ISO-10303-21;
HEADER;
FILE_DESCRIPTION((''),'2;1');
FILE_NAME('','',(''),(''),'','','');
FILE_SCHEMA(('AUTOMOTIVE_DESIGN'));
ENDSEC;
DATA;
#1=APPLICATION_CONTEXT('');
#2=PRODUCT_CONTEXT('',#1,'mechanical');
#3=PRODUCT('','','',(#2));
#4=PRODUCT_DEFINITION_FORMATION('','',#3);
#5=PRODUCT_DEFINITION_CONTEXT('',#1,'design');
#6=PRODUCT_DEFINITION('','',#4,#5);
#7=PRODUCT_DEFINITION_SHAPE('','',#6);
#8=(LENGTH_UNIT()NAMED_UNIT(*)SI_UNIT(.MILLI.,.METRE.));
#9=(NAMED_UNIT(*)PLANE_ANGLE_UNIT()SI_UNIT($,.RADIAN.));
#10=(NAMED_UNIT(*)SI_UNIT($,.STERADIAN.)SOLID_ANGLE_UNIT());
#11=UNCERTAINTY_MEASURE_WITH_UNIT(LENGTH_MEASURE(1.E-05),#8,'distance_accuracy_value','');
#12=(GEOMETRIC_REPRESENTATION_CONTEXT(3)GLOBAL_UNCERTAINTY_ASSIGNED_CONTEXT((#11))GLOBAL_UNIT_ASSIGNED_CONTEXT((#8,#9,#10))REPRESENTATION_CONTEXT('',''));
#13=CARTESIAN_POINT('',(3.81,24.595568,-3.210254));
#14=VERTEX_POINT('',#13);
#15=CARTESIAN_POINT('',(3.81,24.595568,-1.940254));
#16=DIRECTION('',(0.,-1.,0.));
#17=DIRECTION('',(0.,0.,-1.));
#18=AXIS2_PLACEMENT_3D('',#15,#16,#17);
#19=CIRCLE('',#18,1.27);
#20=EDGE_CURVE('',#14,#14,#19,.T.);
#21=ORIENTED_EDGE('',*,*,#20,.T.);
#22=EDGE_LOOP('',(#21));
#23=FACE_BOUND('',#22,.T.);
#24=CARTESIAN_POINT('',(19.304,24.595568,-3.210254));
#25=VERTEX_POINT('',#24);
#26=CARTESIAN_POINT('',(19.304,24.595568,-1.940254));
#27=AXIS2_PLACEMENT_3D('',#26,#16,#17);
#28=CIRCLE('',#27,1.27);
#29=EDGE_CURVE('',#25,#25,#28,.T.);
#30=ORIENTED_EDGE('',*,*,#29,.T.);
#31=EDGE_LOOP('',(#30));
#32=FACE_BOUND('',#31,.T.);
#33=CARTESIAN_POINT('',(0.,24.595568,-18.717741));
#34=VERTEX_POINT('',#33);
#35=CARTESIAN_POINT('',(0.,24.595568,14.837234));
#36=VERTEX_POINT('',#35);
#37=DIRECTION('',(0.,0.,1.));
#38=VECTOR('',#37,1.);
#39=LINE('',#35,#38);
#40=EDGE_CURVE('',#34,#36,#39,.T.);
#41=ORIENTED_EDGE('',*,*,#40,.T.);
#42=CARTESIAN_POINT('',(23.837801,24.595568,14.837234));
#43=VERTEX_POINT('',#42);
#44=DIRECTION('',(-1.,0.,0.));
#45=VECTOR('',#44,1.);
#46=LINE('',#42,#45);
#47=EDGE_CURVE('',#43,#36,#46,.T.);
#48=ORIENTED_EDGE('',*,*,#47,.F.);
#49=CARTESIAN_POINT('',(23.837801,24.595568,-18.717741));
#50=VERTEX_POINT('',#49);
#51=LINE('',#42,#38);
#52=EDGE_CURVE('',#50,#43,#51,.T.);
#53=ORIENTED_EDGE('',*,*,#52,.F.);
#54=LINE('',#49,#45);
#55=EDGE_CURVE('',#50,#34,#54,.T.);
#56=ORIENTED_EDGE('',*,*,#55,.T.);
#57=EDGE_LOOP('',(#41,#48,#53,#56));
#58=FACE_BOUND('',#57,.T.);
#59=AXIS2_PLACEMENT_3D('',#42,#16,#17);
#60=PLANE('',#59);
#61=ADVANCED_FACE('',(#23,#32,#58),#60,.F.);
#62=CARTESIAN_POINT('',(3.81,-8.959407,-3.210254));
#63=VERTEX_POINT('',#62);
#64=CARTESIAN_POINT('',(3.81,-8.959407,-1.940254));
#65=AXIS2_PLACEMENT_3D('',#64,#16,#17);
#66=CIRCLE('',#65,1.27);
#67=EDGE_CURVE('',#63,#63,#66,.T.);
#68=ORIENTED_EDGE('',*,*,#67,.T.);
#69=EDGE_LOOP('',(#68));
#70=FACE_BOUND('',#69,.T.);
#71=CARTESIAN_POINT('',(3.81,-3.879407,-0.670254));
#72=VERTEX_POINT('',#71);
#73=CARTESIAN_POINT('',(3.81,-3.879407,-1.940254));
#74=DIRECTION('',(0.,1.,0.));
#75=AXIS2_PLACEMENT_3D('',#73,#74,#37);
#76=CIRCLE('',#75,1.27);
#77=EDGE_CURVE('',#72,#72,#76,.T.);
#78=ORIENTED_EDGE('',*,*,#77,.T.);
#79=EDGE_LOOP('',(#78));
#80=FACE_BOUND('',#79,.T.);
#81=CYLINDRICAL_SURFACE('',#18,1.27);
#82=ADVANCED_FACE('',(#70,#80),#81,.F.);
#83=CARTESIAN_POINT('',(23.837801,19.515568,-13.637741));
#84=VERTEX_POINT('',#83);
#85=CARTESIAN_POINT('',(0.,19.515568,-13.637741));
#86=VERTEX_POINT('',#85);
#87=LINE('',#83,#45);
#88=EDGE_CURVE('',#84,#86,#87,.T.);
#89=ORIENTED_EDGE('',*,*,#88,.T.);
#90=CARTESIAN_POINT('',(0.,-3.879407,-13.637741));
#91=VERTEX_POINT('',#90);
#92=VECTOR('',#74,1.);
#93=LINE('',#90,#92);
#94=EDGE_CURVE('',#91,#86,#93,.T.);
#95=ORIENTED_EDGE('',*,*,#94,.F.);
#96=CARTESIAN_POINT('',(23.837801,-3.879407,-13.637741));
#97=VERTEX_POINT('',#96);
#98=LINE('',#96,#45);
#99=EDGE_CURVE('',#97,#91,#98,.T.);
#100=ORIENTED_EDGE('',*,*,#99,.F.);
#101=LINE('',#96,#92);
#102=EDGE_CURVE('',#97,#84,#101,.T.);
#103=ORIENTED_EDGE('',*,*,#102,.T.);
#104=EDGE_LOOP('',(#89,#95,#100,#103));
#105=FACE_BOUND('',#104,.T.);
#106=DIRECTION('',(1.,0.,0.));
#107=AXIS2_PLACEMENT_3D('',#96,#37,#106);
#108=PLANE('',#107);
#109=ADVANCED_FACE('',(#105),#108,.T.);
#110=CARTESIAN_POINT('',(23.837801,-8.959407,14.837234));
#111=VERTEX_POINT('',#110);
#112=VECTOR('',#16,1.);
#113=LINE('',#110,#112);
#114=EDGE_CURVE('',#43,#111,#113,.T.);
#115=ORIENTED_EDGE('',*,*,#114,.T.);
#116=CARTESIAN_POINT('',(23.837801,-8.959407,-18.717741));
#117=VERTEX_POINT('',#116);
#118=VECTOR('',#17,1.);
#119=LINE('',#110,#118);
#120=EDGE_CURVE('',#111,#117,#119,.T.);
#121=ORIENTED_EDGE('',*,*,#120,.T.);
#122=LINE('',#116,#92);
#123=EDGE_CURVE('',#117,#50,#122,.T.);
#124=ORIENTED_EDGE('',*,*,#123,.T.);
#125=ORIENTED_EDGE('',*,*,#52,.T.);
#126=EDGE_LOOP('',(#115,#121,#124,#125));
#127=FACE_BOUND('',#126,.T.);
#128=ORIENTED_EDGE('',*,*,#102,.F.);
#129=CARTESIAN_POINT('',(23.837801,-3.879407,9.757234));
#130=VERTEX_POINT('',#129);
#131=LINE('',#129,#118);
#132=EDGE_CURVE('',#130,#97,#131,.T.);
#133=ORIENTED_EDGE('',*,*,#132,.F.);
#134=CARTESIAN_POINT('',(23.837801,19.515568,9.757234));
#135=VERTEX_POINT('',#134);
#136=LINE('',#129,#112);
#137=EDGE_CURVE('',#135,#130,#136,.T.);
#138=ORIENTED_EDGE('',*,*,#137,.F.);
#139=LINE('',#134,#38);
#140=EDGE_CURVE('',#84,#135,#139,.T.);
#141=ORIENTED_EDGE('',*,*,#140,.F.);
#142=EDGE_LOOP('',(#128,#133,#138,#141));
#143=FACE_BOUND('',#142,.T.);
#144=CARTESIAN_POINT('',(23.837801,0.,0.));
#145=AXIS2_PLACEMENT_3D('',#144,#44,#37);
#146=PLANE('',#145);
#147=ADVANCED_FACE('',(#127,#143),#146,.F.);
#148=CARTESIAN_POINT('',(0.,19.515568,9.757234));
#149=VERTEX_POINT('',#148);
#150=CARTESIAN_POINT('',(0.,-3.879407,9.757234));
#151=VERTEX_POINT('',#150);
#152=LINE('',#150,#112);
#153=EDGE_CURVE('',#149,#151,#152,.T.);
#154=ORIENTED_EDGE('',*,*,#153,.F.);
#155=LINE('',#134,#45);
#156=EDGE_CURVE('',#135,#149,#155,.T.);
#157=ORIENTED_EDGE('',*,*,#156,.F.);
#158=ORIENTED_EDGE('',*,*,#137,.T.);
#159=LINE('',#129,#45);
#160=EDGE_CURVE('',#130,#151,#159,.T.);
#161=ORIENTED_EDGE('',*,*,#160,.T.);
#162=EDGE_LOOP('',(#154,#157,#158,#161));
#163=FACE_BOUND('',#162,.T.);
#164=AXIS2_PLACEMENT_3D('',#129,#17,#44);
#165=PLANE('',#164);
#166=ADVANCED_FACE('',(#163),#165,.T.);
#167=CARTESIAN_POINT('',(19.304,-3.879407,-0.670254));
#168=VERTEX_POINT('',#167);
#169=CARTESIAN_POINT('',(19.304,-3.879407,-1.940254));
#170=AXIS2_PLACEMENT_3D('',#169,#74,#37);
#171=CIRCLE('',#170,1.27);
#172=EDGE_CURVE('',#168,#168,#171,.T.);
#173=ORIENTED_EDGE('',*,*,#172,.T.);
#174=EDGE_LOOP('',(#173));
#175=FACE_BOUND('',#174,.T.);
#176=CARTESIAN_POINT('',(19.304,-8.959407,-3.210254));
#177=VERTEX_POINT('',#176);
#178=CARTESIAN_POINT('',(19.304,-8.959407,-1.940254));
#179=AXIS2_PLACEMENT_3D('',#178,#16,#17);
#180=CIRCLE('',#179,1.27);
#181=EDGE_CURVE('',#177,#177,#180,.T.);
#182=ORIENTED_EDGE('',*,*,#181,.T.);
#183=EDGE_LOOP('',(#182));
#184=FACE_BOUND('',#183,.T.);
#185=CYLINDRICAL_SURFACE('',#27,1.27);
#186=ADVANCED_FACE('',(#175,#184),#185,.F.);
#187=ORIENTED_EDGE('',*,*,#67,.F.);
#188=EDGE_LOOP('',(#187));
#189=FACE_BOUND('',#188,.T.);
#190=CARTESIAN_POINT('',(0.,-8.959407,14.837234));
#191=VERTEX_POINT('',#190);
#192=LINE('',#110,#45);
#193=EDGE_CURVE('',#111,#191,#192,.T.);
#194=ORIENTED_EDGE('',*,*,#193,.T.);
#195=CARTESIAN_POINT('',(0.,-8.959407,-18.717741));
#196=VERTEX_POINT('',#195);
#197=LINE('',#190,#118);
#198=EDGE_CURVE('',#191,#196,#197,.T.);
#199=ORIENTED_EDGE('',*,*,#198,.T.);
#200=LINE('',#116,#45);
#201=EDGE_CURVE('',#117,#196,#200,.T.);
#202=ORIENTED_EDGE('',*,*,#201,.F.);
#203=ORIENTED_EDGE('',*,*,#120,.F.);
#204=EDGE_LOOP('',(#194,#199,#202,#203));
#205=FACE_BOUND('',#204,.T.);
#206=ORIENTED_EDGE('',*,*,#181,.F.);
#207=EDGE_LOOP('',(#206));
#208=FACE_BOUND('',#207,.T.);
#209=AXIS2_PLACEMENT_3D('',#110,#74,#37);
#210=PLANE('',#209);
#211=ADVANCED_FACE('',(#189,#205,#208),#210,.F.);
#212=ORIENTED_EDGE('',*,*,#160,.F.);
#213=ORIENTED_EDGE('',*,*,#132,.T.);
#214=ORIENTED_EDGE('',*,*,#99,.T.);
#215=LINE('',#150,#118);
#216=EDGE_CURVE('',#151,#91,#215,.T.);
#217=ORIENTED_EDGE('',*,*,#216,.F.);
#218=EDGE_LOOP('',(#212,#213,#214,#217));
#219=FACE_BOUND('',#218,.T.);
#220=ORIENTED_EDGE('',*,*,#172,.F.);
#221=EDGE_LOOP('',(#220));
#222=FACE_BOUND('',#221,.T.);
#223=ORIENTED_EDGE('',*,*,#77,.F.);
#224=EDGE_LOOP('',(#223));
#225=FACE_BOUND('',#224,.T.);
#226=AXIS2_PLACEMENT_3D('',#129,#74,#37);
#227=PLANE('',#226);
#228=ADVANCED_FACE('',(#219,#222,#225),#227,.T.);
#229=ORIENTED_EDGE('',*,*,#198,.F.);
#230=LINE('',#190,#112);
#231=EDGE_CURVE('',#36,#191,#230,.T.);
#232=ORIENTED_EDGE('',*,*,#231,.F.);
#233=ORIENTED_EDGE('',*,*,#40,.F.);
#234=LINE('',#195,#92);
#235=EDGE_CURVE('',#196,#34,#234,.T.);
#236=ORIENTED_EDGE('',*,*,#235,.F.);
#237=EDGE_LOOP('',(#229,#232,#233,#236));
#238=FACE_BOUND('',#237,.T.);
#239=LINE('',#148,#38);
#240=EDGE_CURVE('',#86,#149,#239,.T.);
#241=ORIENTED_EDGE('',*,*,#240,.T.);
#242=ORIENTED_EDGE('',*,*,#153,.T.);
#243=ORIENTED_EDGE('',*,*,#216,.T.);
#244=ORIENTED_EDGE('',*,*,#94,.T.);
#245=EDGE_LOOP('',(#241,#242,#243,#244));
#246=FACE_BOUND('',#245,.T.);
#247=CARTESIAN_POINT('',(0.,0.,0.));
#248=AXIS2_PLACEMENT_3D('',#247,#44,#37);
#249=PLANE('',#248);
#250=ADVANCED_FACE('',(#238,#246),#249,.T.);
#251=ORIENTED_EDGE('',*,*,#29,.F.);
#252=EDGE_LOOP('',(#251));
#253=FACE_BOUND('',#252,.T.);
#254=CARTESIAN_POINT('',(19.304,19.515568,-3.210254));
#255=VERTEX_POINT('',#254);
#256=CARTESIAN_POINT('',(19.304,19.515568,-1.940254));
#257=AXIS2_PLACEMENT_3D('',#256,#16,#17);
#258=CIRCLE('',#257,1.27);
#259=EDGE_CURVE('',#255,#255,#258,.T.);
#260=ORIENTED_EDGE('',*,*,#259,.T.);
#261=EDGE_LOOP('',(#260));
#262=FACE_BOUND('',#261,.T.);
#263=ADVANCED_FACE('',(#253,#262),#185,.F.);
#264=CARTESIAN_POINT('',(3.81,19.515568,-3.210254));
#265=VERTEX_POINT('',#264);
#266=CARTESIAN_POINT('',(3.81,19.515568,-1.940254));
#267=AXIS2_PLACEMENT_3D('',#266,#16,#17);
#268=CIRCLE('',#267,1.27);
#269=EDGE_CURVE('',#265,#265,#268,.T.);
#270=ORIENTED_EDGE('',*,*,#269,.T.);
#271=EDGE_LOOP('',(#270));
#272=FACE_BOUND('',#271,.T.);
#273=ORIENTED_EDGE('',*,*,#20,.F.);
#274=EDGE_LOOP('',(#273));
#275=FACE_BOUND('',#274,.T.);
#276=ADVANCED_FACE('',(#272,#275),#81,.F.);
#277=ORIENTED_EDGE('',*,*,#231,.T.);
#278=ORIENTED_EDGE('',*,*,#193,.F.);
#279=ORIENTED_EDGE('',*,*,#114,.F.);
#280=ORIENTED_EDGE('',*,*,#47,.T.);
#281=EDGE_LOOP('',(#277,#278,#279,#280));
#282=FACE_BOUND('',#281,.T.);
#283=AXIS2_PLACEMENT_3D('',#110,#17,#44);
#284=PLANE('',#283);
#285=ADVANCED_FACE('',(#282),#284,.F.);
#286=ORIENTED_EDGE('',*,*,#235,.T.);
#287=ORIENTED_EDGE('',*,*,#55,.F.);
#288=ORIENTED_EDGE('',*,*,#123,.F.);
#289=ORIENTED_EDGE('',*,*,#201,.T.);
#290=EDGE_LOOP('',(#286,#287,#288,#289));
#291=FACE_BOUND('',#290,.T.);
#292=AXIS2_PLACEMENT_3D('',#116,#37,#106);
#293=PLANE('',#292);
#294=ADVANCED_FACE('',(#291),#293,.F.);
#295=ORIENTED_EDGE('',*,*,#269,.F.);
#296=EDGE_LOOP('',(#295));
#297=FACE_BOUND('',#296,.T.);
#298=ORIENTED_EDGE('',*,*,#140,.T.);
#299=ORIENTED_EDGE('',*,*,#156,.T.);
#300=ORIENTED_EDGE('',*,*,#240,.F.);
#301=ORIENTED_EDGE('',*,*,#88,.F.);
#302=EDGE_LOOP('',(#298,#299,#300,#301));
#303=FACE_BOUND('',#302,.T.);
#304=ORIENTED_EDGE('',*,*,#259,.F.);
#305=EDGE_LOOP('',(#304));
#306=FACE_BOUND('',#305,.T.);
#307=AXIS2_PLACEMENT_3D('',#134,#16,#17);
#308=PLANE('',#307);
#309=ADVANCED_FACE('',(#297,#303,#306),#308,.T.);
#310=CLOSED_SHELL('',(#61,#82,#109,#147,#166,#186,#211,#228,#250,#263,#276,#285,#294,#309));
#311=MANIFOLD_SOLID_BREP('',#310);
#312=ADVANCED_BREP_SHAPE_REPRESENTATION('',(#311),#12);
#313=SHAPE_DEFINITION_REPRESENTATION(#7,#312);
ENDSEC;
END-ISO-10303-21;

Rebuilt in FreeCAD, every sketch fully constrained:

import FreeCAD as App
import Part
import Sketcher

V = App.Vector
Q = App.Units.Quantity

doc = App.newDocument("Part")
params = doc.addObject("Spreadsheet::Sheet", "Params")
for row, (alias, value) in enumerate([
    ("pad1_length", "23.837801 mm"),
    ("sketch2_diameter", "0.1 in"),
], start=1):
    params.set(f"A{row}", alias)
    params.set(f"B{row}", "=" + value)
    params.setAlias(f"B{row}", alias)

body = doc.addObject("PartDesign::Body", "Body")

# Sketch on YZ plane
sketch1 = body.newObject("Sketcher::SketchObject", "Sketch")
sketch1.AttachmentSupport = (doc.getObject("YZ_Plane"), [""])
sketch1.MapMode = "FlatFace"
sketch1.addGeometry(Part.LineSegment(V(25, 15, 0), V(-9, 15, 0)), False)
sketch1.addGeometry(Part.LineSegment(V(-9, 15, 0), V(-9, -19, 0)), False)
sketch1.addGeometry(Part.LineSegment(V(-9, -19, 0), V(25, -19, 0)), False)
sketch1.addGeometry(Part.LineSegment(V(25, -19, 0), V(25, 15, 0)), False)
sketch1.addGeometry(Part.LineSegment(V(-4, -14, 0), V(-4, 10, 0)), False)
sketch1.addGeometry(Part.LineSegment(V(-4, 10, 0), V(20, 10, 0)), False)
sketch1.addGeometry(Part.LineSegment(V(20, 10, 0), V(20, -14, 0)), False)
sketch1.addGeometry(Part.LineSegment(V(20, -14, 0), V(-4, -14, 0)), False)
sketch1.addConstraint(Sketcher.Constraint("Coincident", 0, 2, 1, 1))
sketch1.addConstraint(Sketcher.Constraint("Coincident", 1, 2, 2, 1))
sketch1.addConstraint(Sketcher.Constraint("Coincident", 2, 2, 3, 1))
sketch1.addConstraint(Sketcher.Constraint("Coincident", 3, 2, 0, 1))
sketch1.addConstraint(Sketcher.Constraint("Coincident", 4, 2, 5, 1))
sketch1.addConstraint(Sketcher.Constraint("Coincident", 5, 2, 6, 1))
sketch1.addConstraint(Sketcher.Constraint("Coincident", 6, 2, 7, 1))
sketch1.addConstraint(Sketcher.Constraint("Coincident", 7, 2, 4, 1))
sketch1.addConstraint(Sketcher.Constraint("Horizontal", 0))
sketch1.addConstraint(Sketcher.Constraint("Vertical", 1))
sketch1.addConstraint(Sketcher.Constraint("Horizontal", 2))
sketch1.addConstraint(Sketcher.Constraint("Vertical", 3))
sketch1.addConstraint(Sketcher.Constraint("Vertical", 4))
sketch1.addConstraint(Sketcher.Constraint("Horizontal", 5))
sketch1.addConstraint(Sketcher.Constraint("Vertical", 6))
sketch1.addConstraint(Sketcher.Constraint("Horizontal", 7))
sketch1.addConstraint(Sketcher.Constraint("Equal", 2, 1))
sketch1.addConstraint(Sketcher.Constraint("Equal", 7, 4))
sketch1.addConstraint(Sketcher.Constraint("DistanceX", 0, 2, 4, 2, Q("0.2 in")))
sketch1.addConstraint(Sketcher.Constraint("DistanceY", 4, 2, 0, 2, Q("0.2 in")))
sketch1.addConstraint(Sketcher.Constraint("DistanceX", 5, 2, 3, 2, Q("0.2 in")))
sketch1.addConstraint(Sketcher.Constraint("DistanceX", 0, 2, 0, 1, Q("33.554975 mm")))
sketch1.addConstraint(Sketcher.Constraint("DistanceY", 1, 2, -1, 1, Q("18.717741 mm")))
sketch1.addConstraint(Sketcher.Constraint("DistanceX", -1, 1, 2, 2, Q("24.595568 mm")))
pad1 = body.newObject("PartDesign::Pad", "Pad")
pad1.Profile = sketch1
pad1.setExpression("Length", "Params.pad1_length")

# Sketch on XZ plane
sketch2 = body.newObject("Sketcher::SketchObject", "Sketch001")
sketch2.AttachmentSupport = (doc.getObject("XZ_Plane"), [""])
sketch2.MapMode = "FlatFace"
sketch2.AttachmentOffset = App.Placement(V(0, 0, 8.959407), App.Rotation())
sketch2.addGeometry(Part.Circle(V(3.8, -1.9, 0), V(0, 0, 1), 1.3), False)
sketch2.addGeometry(Part.Circle(V(19.3, -1.9, 0), V(0, 0, 1), 1.3), False)
sketch2.addConstraint(Sketcher.Constraint("Equal", 0, 1))
sketch2.addConstraint(Sketcher.Constraint("Horizontal", 0, 3, 1, 3))
sketch2.addConstraint(Sketcher.Constraint("Diameter", 0, Q("0.1 in")))
sketch2.addConstraint(Sketcher.Constraint("DistanceX", -1, 1, 0, 3, Q("0.15 in")))
sketch2.addConstraint(Sketcher.Constraint("DistanceX", -1, 1, 1, 3, Q("0.76 in")))
sketch2.addConstraint(Sketcher.Constraint("DistanceY", 0, 3, -1, 1, Q("1.940254 mm")))
sketch2.setExpression("Constraints[2]", "Params.sketch2_diameter")
pocket1 = body.newObject("PartDesign::Pocket", "Pocket")
pocket1.Profile = sketch2
pocket1.Type = "ThroughAll"

doc.recompute()
